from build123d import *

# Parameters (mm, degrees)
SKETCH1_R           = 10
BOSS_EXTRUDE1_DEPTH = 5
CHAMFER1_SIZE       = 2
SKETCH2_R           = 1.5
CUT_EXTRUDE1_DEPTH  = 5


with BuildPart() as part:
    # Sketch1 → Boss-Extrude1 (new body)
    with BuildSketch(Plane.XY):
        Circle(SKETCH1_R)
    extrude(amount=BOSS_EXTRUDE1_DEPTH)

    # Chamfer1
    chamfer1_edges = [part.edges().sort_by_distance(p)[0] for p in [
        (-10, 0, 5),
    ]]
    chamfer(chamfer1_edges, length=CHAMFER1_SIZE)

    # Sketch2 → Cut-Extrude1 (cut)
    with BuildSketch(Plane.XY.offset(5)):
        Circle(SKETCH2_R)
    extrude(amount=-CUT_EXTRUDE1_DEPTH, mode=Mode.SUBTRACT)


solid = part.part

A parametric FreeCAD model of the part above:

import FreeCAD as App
import Part
import Sketcher


def edges_at(feature, points):
    """Names of the edges that pass closest to the given points."""
    edges = feature.Shape.Edges
    near = lambda p: min(range(len(edges)), key=lambda i: edges[i].distToShape(Part.Vertex(*p))[0])
    return sorted({f"Edge{near(p) + 1}" for p in points})

doc = App.newDocument("Part")
body = doc.addObject("PartDesign::Body", "Body")

# Sketch on XY plane
sketch1 = body.newObject("Sketcher::SketchObject", "Sketch")
sketch1.AttachmentSupport = (doc.getObject("XY_Plane"), [""])
sketch1.MapMode = "FlatFace"
sketch1.addGeometry(Part.Circle(App.Vector(0, 0, 0), App.Vector(0, 0, 1), 10), False)
sketch1.addConstraint([
    Sketcher.Constraint("Coincident", 0, 3, -1, 1),
    Sketcher.Constraint("Diameter", 0, 20.0),
])
pad1 = body.newObject("PartDesign::Pad", "Pad")
pad1.Profile = sketch1
pad1.Length = 5
doc.recompute()

chamfer = body.newObject("PartDesign::Chamfer", "Chamfer")
chamfer.Base = (pad1, edges_at(pad1, [(-10, 0, 5)]))
chamfer.Size = 2

# Sketch on XY plane
sketch2 = body.newObject("Sketcher::SketchObject", "Sketch001")
sketch2.AttachmentSupport = (doc.getObject("XY_Plane"), [""])
sketch2.MapMode = "FlatFace"
sketch2.AttachmentOffset = App.Placement(App.Vector(0, 0, 5), App.Rotation())
sketch2.addGeometry(Part.Circle(App.Vector(0, 0, 0), App.Vector(0, 0, 1), 1.5), False)
sketch2.addConstraint([
    Sketcher.Constraint("Coincident", 0, 3, -1, 1),
    Sketcher.Constraint("Diameter", 0, 3.0),
])
pocket1 = body.newObject("PartDesign::Pocket", "Pocket")
pocket1.Profile = sketch2
pocket1.Length = 5

doc.recompute()
